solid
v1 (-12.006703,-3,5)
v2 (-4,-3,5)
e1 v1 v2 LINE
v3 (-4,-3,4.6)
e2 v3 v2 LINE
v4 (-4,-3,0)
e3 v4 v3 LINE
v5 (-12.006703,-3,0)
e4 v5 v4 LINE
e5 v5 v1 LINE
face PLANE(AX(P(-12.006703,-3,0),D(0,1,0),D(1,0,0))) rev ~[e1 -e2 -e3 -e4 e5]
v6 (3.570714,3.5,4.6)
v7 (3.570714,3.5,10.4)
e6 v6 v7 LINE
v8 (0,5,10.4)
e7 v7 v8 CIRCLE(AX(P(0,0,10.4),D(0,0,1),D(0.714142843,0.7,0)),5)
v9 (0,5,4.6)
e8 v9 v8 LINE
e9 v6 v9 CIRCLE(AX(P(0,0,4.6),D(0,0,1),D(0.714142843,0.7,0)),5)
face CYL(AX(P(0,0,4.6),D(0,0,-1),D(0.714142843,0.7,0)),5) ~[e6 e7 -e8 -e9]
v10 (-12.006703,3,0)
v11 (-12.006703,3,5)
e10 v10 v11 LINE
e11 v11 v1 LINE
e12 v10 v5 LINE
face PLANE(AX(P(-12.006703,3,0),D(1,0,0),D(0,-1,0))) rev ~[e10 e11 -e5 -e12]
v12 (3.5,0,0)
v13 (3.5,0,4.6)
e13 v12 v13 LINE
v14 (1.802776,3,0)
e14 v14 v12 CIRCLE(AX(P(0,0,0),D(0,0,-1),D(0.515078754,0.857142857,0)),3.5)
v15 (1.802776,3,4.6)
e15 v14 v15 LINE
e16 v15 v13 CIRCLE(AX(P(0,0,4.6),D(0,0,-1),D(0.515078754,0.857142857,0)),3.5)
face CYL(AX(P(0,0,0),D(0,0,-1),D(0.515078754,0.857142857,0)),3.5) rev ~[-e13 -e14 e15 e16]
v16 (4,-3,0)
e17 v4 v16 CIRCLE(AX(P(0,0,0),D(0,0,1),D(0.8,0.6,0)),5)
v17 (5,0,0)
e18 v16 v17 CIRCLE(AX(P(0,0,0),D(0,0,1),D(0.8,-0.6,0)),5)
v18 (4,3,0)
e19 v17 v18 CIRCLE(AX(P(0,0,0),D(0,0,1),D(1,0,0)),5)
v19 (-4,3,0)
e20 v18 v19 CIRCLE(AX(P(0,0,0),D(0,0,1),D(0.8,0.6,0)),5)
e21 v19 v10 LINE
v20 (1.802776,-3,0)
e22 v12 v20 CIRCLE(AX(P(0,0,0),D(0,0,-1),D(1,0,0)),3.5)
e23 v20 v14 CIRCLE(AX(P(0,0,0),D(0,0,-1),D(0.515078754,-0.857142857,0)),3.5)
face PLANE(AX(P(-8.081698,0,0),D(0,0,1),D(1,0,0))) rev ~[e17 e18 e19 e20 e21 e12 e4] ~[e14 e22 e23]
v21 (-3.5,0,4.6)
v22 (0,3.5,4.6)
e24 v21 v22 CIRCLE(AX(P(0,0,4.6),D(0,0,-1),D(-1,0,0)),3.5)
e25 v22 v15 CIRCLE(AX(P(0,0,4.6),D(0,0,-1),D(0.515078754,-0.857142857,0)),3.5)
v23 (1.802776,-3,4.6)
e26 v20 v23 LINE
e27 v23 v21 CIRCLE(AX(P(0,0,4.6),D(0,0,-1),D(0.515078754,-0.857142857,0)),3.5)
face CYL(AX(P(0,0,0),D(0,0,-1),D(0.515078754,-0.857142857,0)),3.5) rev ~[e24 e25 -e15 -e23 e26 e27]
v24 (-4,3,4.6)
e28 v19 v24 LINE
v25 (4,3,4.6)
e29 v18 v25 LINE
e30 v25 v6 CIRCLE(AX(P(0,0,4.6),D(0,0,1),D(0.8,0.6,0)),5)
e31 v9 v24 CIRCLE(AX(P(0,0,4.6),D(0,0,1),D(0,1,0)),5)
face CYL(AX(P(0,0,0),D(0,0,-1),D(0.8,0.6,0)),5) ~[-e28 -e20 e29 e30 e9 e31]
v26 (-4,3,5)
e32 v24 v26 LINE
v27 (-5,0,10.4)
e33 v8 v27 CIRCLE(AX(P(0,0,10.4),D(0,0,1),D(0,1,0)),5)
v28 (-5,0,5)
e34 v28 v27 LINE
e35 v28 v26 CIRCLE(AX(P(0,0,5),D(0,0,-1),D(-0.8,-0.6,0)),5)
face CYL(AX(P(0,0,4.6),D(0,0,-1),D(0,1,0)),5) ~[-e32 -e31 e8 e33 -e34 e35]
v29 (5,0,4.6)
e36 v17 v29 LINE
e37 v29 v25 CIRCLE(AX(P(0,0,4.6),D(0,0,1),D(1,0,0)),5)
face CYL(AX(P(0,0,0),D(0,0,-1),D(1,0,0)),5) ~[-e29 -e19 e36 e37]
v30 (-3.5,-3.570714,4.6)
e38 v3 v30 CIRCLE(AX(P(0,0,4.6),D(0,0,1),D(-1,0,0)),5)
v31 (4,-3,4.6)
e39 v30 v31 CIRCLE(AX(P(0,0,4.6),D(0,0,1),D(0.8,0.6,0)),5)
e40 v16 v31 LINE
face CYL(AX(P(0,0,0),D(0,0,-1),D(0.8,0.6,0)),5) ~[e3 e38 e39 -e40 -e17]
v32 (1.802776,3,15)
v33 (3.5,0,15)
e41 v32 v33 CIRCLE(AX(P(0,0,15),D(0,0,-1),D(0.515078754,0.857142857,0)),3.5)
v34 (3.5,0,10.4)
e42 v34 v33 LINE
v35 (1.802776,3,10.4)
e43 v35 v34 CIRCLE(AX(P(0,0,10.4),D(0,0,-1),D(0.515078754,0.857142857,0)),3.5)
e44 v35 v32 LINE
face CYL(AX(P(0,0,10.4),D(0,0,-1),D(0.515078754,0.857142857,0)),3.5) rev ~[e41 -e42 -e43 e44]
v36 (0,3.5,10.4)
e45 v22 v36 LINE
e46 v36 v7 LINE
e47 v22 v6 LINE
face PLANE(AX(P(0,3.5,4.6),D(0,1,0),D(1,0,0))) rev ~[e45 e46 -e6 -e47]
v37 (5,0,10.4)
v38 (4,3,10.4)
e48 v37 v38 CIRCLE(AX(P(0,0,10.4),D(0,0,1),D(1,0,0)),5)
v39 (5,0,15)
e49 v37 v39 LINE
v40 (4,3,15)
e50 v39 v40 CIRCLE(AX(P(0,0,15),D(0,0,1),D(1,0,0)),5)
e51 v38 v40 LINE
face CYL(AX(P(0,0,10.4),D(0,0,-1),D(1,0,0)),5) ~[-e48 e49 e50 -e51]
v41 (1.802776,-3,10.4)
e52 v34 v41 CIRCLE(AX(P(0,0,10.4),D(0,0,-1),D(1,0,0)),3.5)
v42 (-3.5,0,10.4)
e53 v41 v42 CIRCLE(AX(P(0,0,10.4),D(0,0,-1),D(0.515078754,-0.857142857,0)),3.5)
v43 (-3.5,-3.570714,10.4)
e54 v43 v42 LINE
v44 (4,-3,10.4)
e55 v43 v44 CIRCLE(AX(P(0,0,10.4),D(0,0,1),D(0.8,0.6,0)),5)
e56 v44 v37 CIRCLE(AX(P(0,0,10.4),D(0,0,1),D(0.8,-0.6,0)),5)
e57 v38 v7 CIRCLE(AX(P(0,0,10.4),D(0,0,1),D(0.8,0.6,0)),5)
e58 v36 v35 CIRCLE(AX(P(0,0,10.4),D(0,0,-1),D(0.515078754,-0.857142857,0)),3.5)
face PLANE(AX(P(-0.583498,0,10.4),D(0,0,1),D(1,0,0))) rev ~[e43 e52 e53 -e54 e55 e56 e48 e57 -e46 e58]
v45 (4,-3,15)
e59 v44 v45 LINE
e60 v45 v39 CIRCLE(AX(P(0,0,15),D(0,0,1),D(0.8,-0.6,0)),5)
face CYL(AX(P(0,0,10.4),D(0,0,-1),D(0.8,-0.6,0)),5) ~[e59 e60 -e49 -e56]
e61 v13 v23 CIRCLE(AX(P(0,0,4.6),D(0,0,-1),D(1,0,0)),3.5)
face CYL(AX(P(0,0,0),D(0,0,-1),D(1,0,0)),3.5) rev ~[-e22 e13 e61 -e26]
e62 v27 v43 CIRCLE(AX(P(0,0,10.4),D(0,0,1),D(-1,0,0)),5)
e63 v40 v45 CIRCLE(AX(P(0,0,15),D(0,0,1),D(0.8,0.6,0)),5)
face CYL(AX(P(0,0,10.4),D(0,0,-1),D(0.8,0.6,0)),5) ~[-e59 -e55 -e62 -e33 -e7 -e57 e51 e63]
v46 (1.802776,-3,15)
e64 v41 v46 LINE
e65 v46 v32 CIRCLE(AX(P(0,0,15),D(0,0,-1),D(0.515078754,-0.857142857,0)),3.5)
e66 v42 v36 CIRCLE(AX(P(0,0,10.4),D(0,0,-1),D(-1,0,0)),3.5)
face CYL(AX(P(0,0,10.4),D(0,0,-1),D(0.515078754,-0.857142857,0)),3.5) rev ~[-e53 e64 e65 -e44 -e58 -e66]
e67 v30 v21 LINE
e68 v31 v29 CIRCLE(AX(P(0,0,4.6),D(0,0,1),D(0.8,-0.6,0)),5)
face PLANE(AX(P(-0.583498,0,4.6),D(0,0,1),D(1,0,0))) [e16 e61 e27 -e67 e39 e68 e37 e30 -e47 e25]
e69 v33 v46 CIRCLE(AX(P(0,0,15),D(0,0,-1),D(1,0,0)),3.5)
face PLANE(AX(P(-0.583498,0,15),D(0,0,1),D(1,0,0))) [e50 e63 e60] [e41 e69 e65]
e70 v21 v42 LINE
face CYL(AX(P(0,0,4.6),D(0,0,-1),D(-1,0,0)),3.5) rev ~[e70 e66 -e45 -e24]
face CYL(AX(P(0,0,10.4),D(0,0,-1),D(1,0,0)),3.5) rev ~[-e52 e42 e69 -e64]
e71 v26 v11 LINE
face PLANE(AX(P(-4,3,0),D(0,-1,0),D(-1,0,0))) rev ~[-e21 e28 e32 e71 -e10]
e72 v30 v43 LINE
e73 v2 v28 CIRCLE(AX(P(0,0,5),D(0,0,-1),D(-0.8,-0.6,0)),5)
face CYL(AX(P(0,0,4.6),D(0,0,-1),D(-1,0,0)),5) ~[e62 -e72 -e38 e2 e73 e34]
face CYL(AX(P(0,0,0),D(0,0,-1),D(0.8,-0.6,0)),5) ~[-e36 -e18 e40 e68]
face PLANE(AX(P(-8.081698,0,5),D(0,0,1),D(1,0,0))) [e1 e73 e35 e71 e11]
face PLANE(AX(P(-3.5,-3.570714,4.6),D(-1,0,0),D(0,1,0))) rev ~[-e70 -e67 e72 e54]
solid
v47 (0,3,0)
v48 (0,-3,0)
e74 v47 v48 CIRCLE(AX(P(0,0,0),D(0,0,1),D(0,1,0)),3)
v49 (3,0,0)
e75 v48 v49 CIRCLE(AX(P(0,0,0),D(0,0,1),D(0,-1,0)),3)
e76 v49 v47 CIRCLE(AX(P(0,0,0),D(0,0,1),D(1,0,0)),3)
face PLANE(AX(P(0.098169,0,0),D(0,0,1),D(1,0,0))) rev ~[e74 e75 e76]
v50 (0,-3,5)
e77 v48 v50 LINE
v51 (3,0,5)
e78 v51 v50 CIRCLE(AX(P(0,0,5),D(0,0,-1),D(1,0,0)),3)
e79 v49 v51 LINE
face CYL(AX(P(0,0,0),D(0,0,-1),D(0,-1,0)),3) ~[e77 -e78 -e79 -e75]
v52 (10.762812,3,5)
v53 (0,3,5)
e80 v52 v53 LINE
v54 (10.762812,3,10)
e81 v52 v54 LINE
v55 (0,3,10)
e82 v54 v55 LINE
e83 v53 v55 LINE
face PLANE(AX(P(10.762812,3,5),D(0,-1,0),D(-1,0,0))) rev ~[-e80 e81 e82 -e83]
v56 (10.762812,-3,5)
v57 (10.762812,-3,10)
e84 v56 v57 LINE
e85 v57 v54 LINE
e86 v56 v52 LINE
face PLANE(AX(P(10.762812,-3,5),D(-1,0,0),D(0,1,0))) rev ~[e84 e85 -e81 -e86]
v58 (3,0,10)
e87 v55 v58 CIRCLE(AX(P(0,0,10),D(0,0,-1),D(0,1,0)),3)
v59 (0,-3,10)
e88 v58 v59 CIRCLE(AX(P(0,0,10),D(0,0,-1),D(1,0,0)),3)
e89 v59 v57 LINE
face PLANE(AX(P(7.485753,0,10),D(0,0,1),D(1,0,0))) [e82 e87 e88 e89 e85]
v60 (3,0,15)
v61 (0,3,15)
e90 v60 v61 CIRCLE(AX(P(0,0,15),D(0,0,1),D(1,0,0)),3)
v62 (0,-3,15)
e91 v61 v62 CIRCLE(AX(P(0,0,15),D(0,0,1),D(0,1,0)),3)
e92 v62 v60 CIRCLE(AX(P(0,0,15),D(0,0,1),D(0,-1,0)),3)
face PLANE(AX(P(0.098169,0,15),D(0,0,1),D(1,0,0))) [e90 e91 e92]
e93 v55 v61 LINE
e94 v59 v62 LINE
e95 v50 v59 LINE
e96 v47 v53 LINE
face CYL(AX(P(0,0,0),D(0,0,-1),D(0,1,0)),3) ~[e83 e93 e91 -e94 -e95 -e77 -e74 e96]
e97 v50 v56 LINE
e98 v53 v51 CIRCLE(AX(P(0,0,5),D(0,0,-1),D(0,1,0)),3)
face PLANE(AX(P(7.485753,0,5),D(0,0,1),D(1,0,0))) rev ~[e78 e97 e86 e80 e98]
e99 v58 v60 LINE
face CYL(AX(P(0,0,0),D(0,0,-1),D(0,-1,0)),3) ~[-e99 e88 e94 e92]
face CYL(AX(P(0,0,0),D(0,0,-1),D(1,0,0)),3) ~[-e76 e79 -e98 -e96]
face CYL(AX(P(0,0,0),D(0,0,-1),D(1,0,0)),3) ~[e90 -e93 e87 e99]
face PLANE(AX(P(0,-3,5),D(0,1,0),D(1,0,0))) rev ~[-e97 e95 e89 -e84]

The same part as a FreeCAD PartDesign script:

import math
import FreeCAD as App
import Part
import Sketcher

V = App.Vector
Q = App.Units.Quantity

doc = App.newDocument("Part")
params = doc.addObject("Spreadsheet::Sheet", "Params")
for row, (alias, value) in enumerate([
    ("sketch1_radius", "3 mm"),
    ("pad1_length", "15 mm"),
    ("sketch2_radius", "3 mm"),
    ("pad2_length", "5 mm"),
    ("sketch3_radius", "5 mm"),
    ("sketch3_radius2", "3.5 mm"),
    ("pad3_length", "4.6 mm"),
    ("sketch4_radius", "5 mm"),
    ("sketch4_radius2", "3.5 mm"),
    ("pad4_length", "5.8 mm"),
    ("sketch5_radius", "5 mm"),
    ("sketch5_radius2", "3.5 mm"),
    ("pad5_length", "4.6 mm"),
    ("sketch6_radius", "5 mm"),
    ("sketch6_height", "6 mm"),
    ("pad6_length", "5 mm"),
], start=1):
    params.set(f"A{row}", alias)
    params.set(f"B{row}", "=" + value)
    params.setAlias(f"B{row}", alias)

body = doc.addObject("PartDesign::Body", "Body")

# Sketch on XY plane
sketch1 = body.newObject("Sketcher::SketchObject", "Sketch")
sketch1.AttachmentSupport = (doc.getObject("XY_Plane"), [""])
sketch1.MapMode = "FlatFace"
sketch1.addGeometry([
    Part.ArcOfCircle(Part.Circle(V(0, 0, 0), V(0, 0, 1), 3), math.radians(-90), math.radians(0)),
    Part.ArcOfCircle(Part.Circle(V(0, 0, 0), V(0, 0, 1), 3), math.radians(0), math.radians(90)),
    Part.ArcOfCircle(Part.Circle(V(0, 0, 0), V(0, 0, 1), 3), math.radians(90), math.radians(270)),
], False)
sketch1.addConstraint([
    Sketcher.Constraint("Tangent", 0, 2, 1, 1),
    Sketcher.Constraint("Tangent", 1, 2, 2, 1),
    Sketcher.Constraint("Tangent", 2, 2, 0, 1),
    Sketcher.Constraint("Coincident", 0, 3, -1, 1),
    Sketcher.Constraint("PointOnObject", 0, 2, -1),
    Sketcher.Constraint("PointOnObject", 1, 2, -2),
    Sketcher.Constraint("PointOnObject", 2, 2, -2),
    Sketcher.Constraint("Radius", 0, Q("3 mm")),
])
sketch1.setExpression("Constraints[7]", "Params.sketch1_radius")
pad1 = body.newObject("PartDesign::Pad", "Pad")
pad1.Profile = sketch1
pad1.setExpression("Length", "Params.pad1_length")

# Sketch on XY plane
sketch2 = body.newObject("Sketcher::SketchObject", "Sketch001")
sketch2.AttachmentSupport = (doc.getObject("XY_Plane"), [""])
sketch2.MapMode = "FlatFace"
sketch2.AttachmentOffset = App.Placement(V(0, 0, 5), App.Rotation())
sketch2.addGeometry([
    Part.LineSegment(V(10.8, 3, 0), V(0, 3, 0)),  # 0
    Part.ArcOfCircle(Part.Circle(V(0, 0, 0), V(0, 0, 1), 3), math.radians(0), math.radians(90)),  # 1
    Part.ArcOfCircle(Part.Circle(V(0, 0, 0), V(0, 0, 1), 3), math.radians(-90), math.radians(0)),  # 2
    Part.LineSegment(V(0, -3, 0), V(10.8, -3, 0)),  # 3
    Part.LineSegment(V(10.8, -3, 0), V(10.8, 3, 0)),  # 4
], False)
sketch2.addConstraint([
    Sketcher.Constraint("Tangent", 0, 2, 1, 2),
    Sketcher.Constraint("Tangent", 1, 1, 2, 2),
    Sketcher.Constraint("Tangent", 2, 1, 3, 1),
    Sketcher.Constraint("Coincident", 3, 2, 4, 1),
    Sketcher.Constraint("Coincident", 4, 2, 0, 1),
    Sketcher.Constraint("Horizontal", 0),
    Sketcher.Constraint("Horizontal", 3),
    Sketcher.Constraint("Vertical", 4),
    Sketcher.Constraint("Coincident", 1, 3, -1, 1),
    Sketcher.Constraint("Equal", 1, 2),
    Sketcher.Constraint("PointOnObject", 1, 1, -1),
    Sketcher.Constraint("Radius", 1, Q("3 mm")),
    Sketcher.Constraint("DistanceX", 0, 2, 0, 1, Q("10.762812 mm")),
])
sketch2.setExpression("Constraints[11]", "Params.sketch2_radius")
pad2 = body.newObject("PartDesign::Pad", "Pad001")
pad2.Profile = sketch2
pad2.setExpression("Length", "Params.pad2_length")
body2 = doc.addObject("PartDesign::Body", "Body001")

# Sketch on XY plane
sketch3 = body2.newObject("Sketcher::SketchObject", "Sketch002")
sketch3.AttachmentSupport = (doc.getObject("XY_Plane001"), [""])
sketch3.MapMode = "FlatFace"
sketch3.addGeometry([
    Part.ArcOfCircle(Part.Circle(V(0, 0, 0), V(0, 0, 1), 5), math.radians(37), math.radians(323)),  # 0
    Part.ArcOfCircle(Part.Circle(V(0, 0, 0), V(0, 0, 1), 5), math.radians(-37), math.radians(0)),  # 1
    Part.ArcOfCircle(Part.Circle(V(0, 0, 0), V(0, 0, 1), 5), math.radians(0), math.radians(37)),  # 2
    Part.ArcOfCircle(Part.Circle(V(0, 0, 0), V(0, 0, 1), 3.5), math.radians(59), math.radians(301)),  # 3
    Part.ArcOfCircle(Part.Circle(V(0, 0, 0), V(0, 0, 1), 3.5), math.radians(0), math.radians(59)),  # 4
    Part.ArcOfCircle(Part.Circle(V(0, 0, 0), V(0, 0, 1), 3.5), math.radians(-59), math.radians(0)),  # 5
], False)
sketch3.addConstraint([
    Sketcher.Constraint("Tangent", 0, 2, 1, 1),
    Sketcher.Constraint("Tangent", 1, 2, 2, 1),
    Sketcher.Constraint("Tangent", 2, 2, 0, 1),
    Sketcher.Constraint("Tangent", 3, 1, 4, 2),
    Sketcher.Constraint("Tangent", 4, 1, 5, 2),
    Sketcher.Constraint("Tangent", 5, 1, 3, 2),
    Sketcher.Constraint("Coincident", 0, 3, -1, 1),
    Sketcher.Constraint("Coincident", 3, 3, -1, 1),
    Sketcher.Constraint("PointOnObject", 1, 2, -1),
    Sketcher.Constraint("PointOnObject", 4, 1, -1),
    Sketcher.Constraint("Horizontal", 2, 2, 3, 1),
    Sketcher.Constraint("Horizontal", 0, 2, 5, 1),
    Sketcher.Constraint("Vertical", 0, 2, 2, 2),
    Sketcher.Constraint("Radius", 0, Q("5 mm")),
    Sketcher.Constraint("Radius", 3, Q("3.5 mm")),
    Sketcher.Constraint("DistanceX", -1, 1, 0, 2, Q("4 mm")),
])
sketch3.setExpression("Constraints[13]", "Params.sketch3_radius")
sketch3.setExpression("Constraints[14]", "Params.sketch3_radius2")
pad3 = body2.newObject("PartDesign::Pad", "Pad002")
pad3.Profile = sketch3
pad3.setExpression("Length", "Params.pad3_length")

# Sketch on XY plane
sketch4 = body2.newObject("Sketcher::SketchObject", "Sketch003")
sketch4.AttachmentSupport = (doc.getObject("XY_Plane001"), [""])
sketch4.MapMode = "FlatFace"
sketch4.AttachmentOffset = App.Placement(V(0, 0, 4.6), App.Rotation())
sketch4.addGeometry([
    Part.ArcOfCircle(Part.Circle(V(0, 0, 0), V(0, 0, 1), 5), math.radians(180), math.radians(226)),  # 0
    Part.LineSegment(V(-3.5, -3.6, 0), V(-3.5, 0, 0)),  # 1
    Part.ArcOfCircle(Part.Circle(V(0, 0, 0), V(0, 0, 1), 3.5), math.radians(90), math.radians(180)),  # 2
    Part.LineSegment(V(0, 3.5, 0), V(3.6, 3.5, 0)),  # 3
    Part.ArcOfCircle(Part.Circle(V(0, 0, 0), V(0, 0, 1), 5), math.radians(44), math.radians(90)),  # 4
    Part.ArcOfCircle(Part.Circle(V(0, 0, 0), V(0, 0, 1), 5), math.radians(90), math.radians(180)),  # 5
], False)
sketch4.addConstraint([
    Sketcher.Constraint("Coincident", 0, 2, 1, 1),
    Sketcher.Constraint("Tangent", 1, 2, 2, 2),
    Sketcher.Constraint("Tangent", 2, 1, 3, 1),
    Sketcher.Constraint("Coincident", 3, 2, 4, 1),
    Sketcher.Constraint("Tangent", 4, 2, 5, 1),
    Sketcher.Constraint("Tangent", 5, 2, 0, 1),
    Sketcher.Constraint("Vertical", 1),
    Sketcher.Constraint("Horizontal", 3),
    Sketcher.Constraint("Coincident", 0, 3, -1, 1),
    Sketcher.Constraint("Coincident", 2, 3, -1, 1),
    Sketcher.Constraint("Coincident", 4, 3, -1, 1),
    Sketcher.Constraint("PointOnObject", 4, 2, -2),
    Sketcher.Constraint("PointOnObject", 5, 2, -1),
    Sketcher.Constraint("Radius", 0, Q("5 mm")),
    Sketcher.Constraint("Radius", 2, Q("3.5 mm")),
])
sketch4.setExpression("Constraints[13]", "Params.sketch4_radius")
sketch4.setExpression("Constraints[14]", "Params.sketch4_radius2")
pad4 = body2.newObject("PartDesign::Pad", "Pad003")
pad4.Profile = sketch4
pad4.setExpression("Length", "Params.pad4_length")

# Sketch on XY plane
sketch5 = body2.newObject("Sketcher::SketchObject", "Sketch004")
sketch5.AttachmentSupport = (doc.getObject("XY_Plane001"), [""])
sketch5.MapMode = "FlatFace"
sketch5.AttachmentOffset = App.Placement(V(0, 0, 10.4), App.Rotation())
sketch5.addGeometry([
    Part.ArcOfCircle(Part.Circle(V(0, 0, 0), V(0, 0, 1), 5), math.radians(37), math.radians(323)),  # 0
    Part.ArcOfCircle(Part.Circle(V(0, 0, 0), V(0, 0, 1), 5), math.radians(-37), math.radians(0)),  # 1
    Part.ArcOfCircle(Part.Circle(V(0, 0, 0), V(0, 0, 1), 5), math.radians(0), math.radians(37)),  # 2
    Part.ArcOfCircle(Part.Circle(V(0, 0, 0), V(0, 0, 1), 3.5), math.radians(59), math.radians(301)),  # 3
    Part.ArcOfCircle(Part.Circle(V(0, 0, 0), V(0, 0, 1), 3.5), math.radians(0), math.radians(59)),  # 4
    Part.ArcOfCircle(Part.Circle(V(0, 0, 0), V(0, 0, 1), 3.5), math.radians(-59), math.radians(0)),  # 5
], False)
sketch5.addConstraint([
    Sketcher.Constraint("Tangent", 0, 2, 1, 1),
    Sketcher.Constraint("Tangent", 1, 2, 2, 1),
    Sketcher.Constraint("Tangent", 2, 2, 0, 1),
    Sketcher.Constraint("Tangent", 3, 1, 4, 2),
    Sketcher.Constraint("Tangent", 4, 1, 5, 2),
    Sketcher.Constraint("Tangent", 5, 1, 3, 2),
    Sketcher.Constraint("Coincident", 0, 3, -1, 1),
    Sketcher.Constraint("Coincident", 3, 3, -1, 1),
    Sketcher.Constraint("PointOnObject", 1, 2, -1),
    Sketcher.Constraint("PointOnObject", 4, 1, -1),
    Sketcher.Constraint("Horizontal", 2, 2, 3, 1),
    Sketcher.Constraint("Horizontal", 0, 2, 5, 1),
    Sketcher.Constraint("Vertical", 0, 2, 2, 2),
    Sketcher.Constraint("Radius", 0, Q("5 mm")),
    Sketcher.Constraint("Radius", 3, Q("3.5 mm")),
    Sketcher.Constraint("DistanceX", -1, 1, 0, 2, Q("4 mm")),
])
sketch5.setExpression("Constraints[13]", "Params.sketch5_radius")
sketch5.setExpression("Constraints[14]", "Params.sketch5_radius2")
pad5 = body2.newObject("PartDesign::Pad", "Pad004")
pad5.Profile = sketch5
pad5.setExpression("Length", "Params.pad5_length")

# Sketch on XY plane
sketch6 = body2.newObject("Sketcher::SketchObject", "Sketch005")
sketch6.AttachmentSupport = (doc.getObject("XY_Plane001"), [""])
sketch6.MapMode = "FlatFace"
sketch6.addGeometry([
    Part.ArcOfCircle(Part.Circle(V(0, 0, 0), V(0, 0, 1), 5), math.radians(143), math.radians(217)),
    Part.LineSegment(V(-4, 3, 0), V(-12, 3, 0)),
    Part.LineSegment(V(-12, 3, 0), V(-12, -3, 0)),
    Part.LineSegment(V(-12, -3, 0), V(-4, -3, 0)),
], False)
sketch6.addConstraint([
    Sketcher.Constraint("Coincident", 0, 1, 1, 1),
    Sketcher.Constraint("Coincident", 1, 2, 2, 1),
    Sketcher.Constraint("Coincident", 2, 2, 3, 1),
    Sketcher.Constraint("Coincident", 3, 2, 0, 2),
    Sketcher.Constraint("Horizontal", 1),
    Sketcher.Constraint("Vertical", 2),
    Sketcher.Constraint("Horizontal", 3),
    Sketcher.Constraint("Coincident", 0, 3, -1, 1),
    Sketcher.Constraint("Vertical", 0, 1, 3, 2),
    Sketcher.Constraint("Radius", 0, Q("5 mm")),
    Sketcher.Constraint("DistanceY", 2, 2, 2, 1, Q("6 mm")),
    Sketcher.Constraint("DistanceX", 1, 2, 1, 1, Q("8.006703 mm")),
])
sketch6.setExpression("Constraints[9]", "Params.sketch6_radius")
sketch6.setExpression("Constraints[10]", "Params.sketch6_height")
pad6 = body2.newObject("PartDesign::Pad", "Pad005")
pad6.Profile = sketch6
pad6.setExpression("Length", "Params.pad6_length")

doc.recompute()
